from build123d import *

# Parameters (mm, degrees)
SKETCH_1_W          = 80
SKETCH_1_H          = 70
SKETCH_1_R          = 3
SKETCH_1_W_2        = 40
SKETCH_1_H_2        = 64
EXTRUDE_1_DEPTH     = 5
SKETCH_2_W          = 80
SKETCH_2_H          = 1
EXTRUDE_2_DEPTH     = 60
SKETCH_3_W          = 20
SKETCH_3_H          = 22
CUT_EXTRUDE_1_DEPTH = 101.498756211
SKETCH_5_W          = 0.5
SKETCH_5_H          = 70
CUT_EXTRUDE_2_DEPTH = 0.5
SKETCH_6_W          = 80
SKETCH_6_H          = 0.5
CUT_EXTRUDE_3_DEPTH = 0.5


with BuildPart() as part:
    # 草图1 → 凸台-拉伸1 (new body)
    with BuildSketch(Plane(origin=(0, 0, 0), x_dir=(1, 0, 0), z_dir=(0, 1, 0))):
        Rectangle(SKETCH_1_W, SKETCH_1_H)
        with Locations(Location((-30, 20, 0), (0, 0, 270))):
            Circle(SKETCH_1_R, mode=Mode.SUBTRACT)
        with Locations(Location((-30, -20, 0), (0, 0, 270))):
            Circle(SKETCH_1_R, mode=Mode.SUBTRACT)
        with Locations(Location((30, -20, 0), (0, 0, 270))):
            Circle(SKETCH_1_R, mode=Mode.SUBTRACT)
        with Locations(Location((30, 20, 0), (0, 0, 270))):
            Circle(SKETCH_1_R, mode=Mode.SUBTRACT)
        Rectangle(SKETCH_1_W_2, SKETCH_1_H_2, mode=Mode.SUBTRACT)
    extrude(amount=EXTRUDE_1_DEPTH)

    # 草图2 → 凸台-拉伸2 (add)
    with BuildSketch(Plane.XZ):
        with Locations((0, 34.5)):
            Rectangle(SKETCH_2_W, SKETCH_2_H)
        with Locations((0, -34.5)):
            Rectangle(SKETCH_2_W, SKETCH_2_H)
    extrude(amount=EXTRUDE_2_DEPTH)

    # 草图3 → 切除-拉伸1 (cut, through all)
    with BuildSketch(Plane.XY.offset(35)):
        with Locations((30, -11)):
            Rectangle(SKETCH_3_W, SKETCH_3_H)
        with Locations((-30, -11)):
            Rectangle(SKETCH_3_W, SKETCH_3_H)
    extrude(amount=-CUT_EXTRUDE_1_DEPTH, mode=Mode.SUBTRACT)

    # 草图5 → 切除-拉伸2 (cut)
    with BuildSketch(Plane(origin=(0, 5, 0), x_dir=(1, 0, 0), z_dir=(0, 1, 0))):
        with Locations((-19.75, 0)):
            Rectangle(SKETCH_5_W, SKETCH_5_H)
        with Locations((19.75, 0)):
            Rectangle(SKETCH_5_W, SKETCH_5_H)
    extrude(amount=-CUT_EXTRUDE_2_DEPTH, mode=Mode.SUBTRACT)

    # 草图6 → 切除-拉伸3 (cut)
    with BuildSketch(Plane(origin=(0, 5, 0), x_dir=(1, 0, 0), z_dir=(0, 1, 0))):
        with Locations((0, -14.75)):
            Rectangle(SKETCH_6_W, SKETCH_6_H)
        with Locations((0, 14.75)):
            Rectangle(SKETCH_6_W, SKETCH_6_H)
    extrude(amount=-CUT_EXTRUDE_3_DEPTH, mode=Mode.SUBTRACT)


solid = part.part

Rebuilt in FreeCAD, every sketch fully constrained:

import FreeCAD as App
import Part
import Sketcher

V = App.Vector
Q = App.Units.Quantity

doc = App.newDocument("Part")
params = doc.addObject("Spreadsheet::Sheet", "Params")
for row, (alias, value) in enumerate([
    ("sketch1_diameter", "6 mm"),
    ("sketch1_width", "80 mm"),
    ("sketch1_width2", "40 mm"),
    ("sketch1_height", "70 mm"),
    ("sketch1_height2", "64 mm"),
    ("pad1_length", "5 mm"),
    ("sketch2_width", "80 mm"),
    ("sketch2_height", "1 mm"),
    ("pad2_length", "60 mm"),
    ("sketch3_width", "20 mm"),
    ("sketch3_height", "22 mm"),
    ("sketch4_height", "70 mm"),
    ("sketch4_width", "0.5 mm"),
    ("pocket2_length", "0.5 mm"),
    ("sketch5_width", "80 mm"),
    ("sketch5_height", "0.5 mm"),
    ("pocket3_length", "0.5 mm"),
], start=1):
    params.set(f"A{row}", alias)
    params.set(f"B{row}", "=" + value)
    params.setAlias(f"B{row}", alias)

body = doc.addObject("PartDesign::Body", "Body")

sketch1 = body.newObject("Sketcher::SketchObject", "Sketch")
sketch1.AttachmentSupport = (doc.getObject("XZ_Plane"), [""])
sketch1.MapMode = "FlatFace"
sketch1.addGeometry([
    Part.LineSegment(V(-40, -35, 0), V(-40, 35, 0)),
    Part.LineSegment(V(-40, 35, 0), V(40, 35, 0)),
    Part.LineSegment(V(40, 35, 0), V(40, -35, 0)),
    Part.LineSegment(V(40, -35, 0), V(-40, -35, 0)),
    Part.Circle(V(-30, 20, 0), V(0, 0, 1), 3),
    Part.Circle(V(30, 20, 0), V(0, 0, 1), 3),
    Part.Circle(V(-30, -20, 0), V(0, 0, 1), 3),
    Part.LineSegment(V(20, 32, 0), V(-20, 32, 0)),
    Part.LineSegment(V(-20, 32, 0), V(-20, -32, 0)),
    Part.LineSegment(V(-20, -32, 0), V(20, -32, 0)),
    Part.LineSegment(V(20, -32, 0), V(20, 32, 0)),
    Part.Circle(V(30, -20, 0), V(0, 0, 1), 3),
], False)
sketch1.addConstraint([
    Sketcher.Constraint("Coincident", 0, 2, 1, 1),
    Sketcher.Constraint("Coincident", 1, 2, 2, 1),
    Sketcher.Constraint("Coincident", 2, 2, 3, 1),
    Sketcher.Constraint("Coincident", 3, 2, 0, 1),
    Sketcher.Constraint("Coincident", 7, 2, 8, 1),
    Sketcher.Constraint("Coincident", 8, 2, 9, 1),
    Sketcher.Constraint("Coincident", 9, 2, 10, 1),
    Sketcher.Constraint("Coincident", 10, 2, 7, 1),
    Sketcher.Constraint("Vertical", 0),
    Sketcher.Constraint("Horizontal", 1),
    Sketcher.Constraint("Vertical", 2),
    Sketcher.Constraint("Horizontal", 3),
    Sketcher.Constraint("Horizontal", 7),
    Sketcher.Constraint("Vertical", 8),
    Sketcher.Constraint("Horizontal", 9),
    Sketcher.Constraint("Vertical", 10),
    Sketcher.Constraint("Equal", 4, 5),
    Sketcher.Constraint("Equal", 5, 6),
    Sketcher.Constraint("Equal", 6, 11),
    Sketcher.Constraint("Symmetric", 5, 3, 6, 3, -1, 1),
    Sketcher.Constraint("Symmetric", 4, 3, 11, 3, -1, 1),
    Sketcher.Constraint("Symmetric", 0, 2, 2, 2, -1, 1),
    Sketcher.Constraint("Symmetric", 7, 2, 9, 2, -1, 1),
    Sketcher.Constraint("Symmetric", 4, 3, 5, 3, -2),
    Sketcher.Constraint("Diameter", 4, Q("6 mm")),
    Sketcher.Constraint("DistanceX", 1, 1, 1, 2, Q("80 mm")),
    Sketcher.Constraint("DistanceX", 7, 2, 7, 1, Q("40 mm")),
    Sketcher.Constraint("DistanceY", 0, 1, 0, 2, Q("70 mm")),
    Sketcher.Constraint("DistanceY", 8, 2, 8, 1, Q("64 mm")),
    Sketcher.Constraint("DistanceX", 4, 3, -1, 1, Q("30 mm")),
    Sketcher.Constraint("DistanceY", -1, 1, 4, 3, Q("20 mm")),
])
sketch1.setExpression("Constraints[24]", "Params.sketch1_diameter")
sketch1.setExpression("Constraints[25]", "Params.sketch1_width")
sketch1.setExpression("Constraints[26]", "Params.sketch1_width2")
sketch1.setExpression("Constraints[27]", "Params.sketch1_height")
sketch1.setExpression("Constraints[28]", "Params.sketch1_height2")
pad1 = body.newObject("PartDesign::Pad", "Pad")
pad1.Profile = sketch1
pad1.setExpression("Length", "Params.pad1_length")
pad1.Reversed = True

sketch2 = body.newObject("Sketcher::SketchObject", "Sketch001")
sketch2.AttachmentSupport = (doc.getObject("XZ_Plane"), [""])
sketch2.MapMode = "FlatFace"
sketch2.addGeometry([
    Part.LineSegment(V(-40, 35, 0), V(-40, 34, 0)),
    Part.LineSegment(V(-40, 34, 0), V(40, 34, 0)),
    Part.LineSegment(V(40, 34, 0), V(40, 35, 0)),
    Part.LineSegment(V(40, 35, 0), V(-40, 35, 0)),
    Part.LineSegment(V(-40, -34, 0), V(-40, -35, 0)),
    Part.LineSegment(V(-40, -35, 0), V(40, -35, 0)),
    Part.LineSegment(V(40, -35, 0), V(40, -34, 0)),
    Part.LineSegment(V(40, -34, 0), V(-40, -34, 0)),
], False)
sketch2.addConstraint([
    Sketcher.Constraint("Coincident", 0, 2, 1, 1),
    Sketcher.Constraint("Coincident", 1, 2, 2, 1),
    Sketcher.Constraint("Coincident", 2, 2, 3, 1),
    Sketcher.Constraint("Coincident", 3, 2, 0, 1),
    Sketcher.Constraint("Coincident", 4, 2, 5, 1),
    Sketcher.Constraint("Coincident", 5, 2, 6, 1),
    Sketcher.Constraint("Coincident", 6, 2, 7, 1),
    Sketcher.Constraint("Coincident", 7, 2, 4, 1),
    Sketcher.Constraint("Vertical", 0),
    Sketcher.Constraint("Horizontal", 1),
    Sketcher.Constraint("Vertical", 2),
    Sketcher.Constraint("Horizontal", 3),
    Sketcher.Constraint("Vertical", 4),
    Sketcher.Constraint("Horizontal", 5),
    Sketcher.Constraint("Vertical", 6),
    Sketcher.Constraint("Horizontal", 7),
    Sketcher.Constraint("Symmetric", 2, 2, 4, 2, -1, 1),
    Sketcher.Constraint("Symmetric", 0, 2, 6, 2, -1, 1),
    Sketcher.Constraint("Vertical", 3, 2, 4, 2),
    Sketcher.Constraint("DistanceX", 1, 1, 1, 2, Q("80 mm")),
    Sketcher.Constraint("DistanceY", 0, 2, 0, 1, Q("1 mm")),
    Sketcher.Constraint("DistanceY", -1, 1, 0, 2, Q("34 mm")),
])
sketch2.setExpression("Constraints[19]", "Params.sketch2_width")
sketch2.setExpression("Constraints[20]", "Params.sketch2_height")
pad2 = body.newObject("PartDesign::Pad", "Pad001")
pad2.Profile = sketch2
pad2.setExpression("Length", "Params.pad2_length")

sketch3 = body.newObject("Sketcher::SketchObject", "Sketch002")
sketch3.AttachmentSupport = (doc.getObject("XY_Plane"), [""])
sketch3.MapMode = "FlatFace"
sketch3.AttachmentOffset = App.Placement(V(0, 0, 35), App.Rotation())
sketch3.addGeometry([
    Part.LineSegment(V(20, 0, 0), V(20, -22, 0)),
    Part.LineSegment(V(20, -22, 0), V(40, -22, 0)),
    Part.LineSegment(V(40, -22, 0), V(40, 0, 0)),
    Part.LineSegment(V(40, 0, 0), V(20, 0, 0)),
    Part.LineSegment(V(-40, 0, 0), V(-40, -22, 0)),
    Part.LineSegment(V(-40, -22, 0), V(-20, -22, 0)),
    Part.LineSegment(V(-20, -22, 0), V(-20, 0, 0)),
    Part.LineSegment(V(-20, 0, 0), V(-40, 0, 0)),
], False)
sketch3.addConstraint([
    Sketcher.Constraint("Coincident", 0, 2, 1, 1),
    Sketcher.Constraint("Coincident", 1, 2, 2, 1),
    Sketcher.Constraint("Coincident", 2, 2, 3, 1),
    Sketcher.Constraint("Coincident", 3, 2, 0, 1),
    Sketcher.Constraint("Coincident", 4, 2, 5, 1),
    Sketcher.Constraint("Coincident", 5, 2, 6, 1),
    Sketcher.Constraint("Coincident", 6, 2, 7, 1),
    Sketcher.Constraint("Coincident", 7, 2, 4, 1),
    Sketcher.Constraint("Vertical", 0),
    Sketcher.Constraint("Horizontal", 1),
    Sketcher.Constraint("Vertical", 2),
    Sketcher.Constraint("Horizontal", 3),
    Sketcher.Constraint("Vertical", 4),
    Sketcher.Constraint("Horizontal", 5),
    Sketcher.Constraint("Vertical", 6),
    Sketcher.Constraint("Horizontal", 7),
    Sketcher.Constraint("Symmetric", 3, 2, 6, 2, -1, 1),
    Sketcher.Constraint("Symmetric", 1, 2, 4, 2, -2),
    Sketcher.Constraint("PointOnObject", 2, 2, -1),
    Sketcher.Constraint("DistanceX", 1, 1, 1, 2, Q("20 mm")),
    Sketcher.Constraint("DistanceY", 0, 2, 0, 1, Q("22 mm")),
    Sketcher.Constraint("DistanceX", -1, 1, 0, 2, Q("20 mm")),
])
sketch3.setExpression("Constraints[19]", "Params.sketch3_width")
sketch3.setExpression("Constraints[20]", "Params.sketch3_height")
pocket1 = body.newObject("PartDesign::Pocket", "Pocket")
pocket1.Profile = sketch3
pocket1.Type = "ThroughAll"

sketch4 = body.newObject("Sketcher::SketchObject", "Sketch003")
sketch4.AttachmentSupport = (doc.getObject("XZ_Plane"), [""])
sketch4.MapMode = "FlatFace"
sketch4.AttachmentOffset = App.Placement(V(0, 0, -5), App.Rotation())
sketch4.addGeometry([
    Part.LineSegment(V(-20, -35, 0), V(-20, 35, 0)),
    Part.LineSegment(V(-20, 35, 0), V(-19.5, 35, 0)),
    Part.LineSegment(V(-19.5, 35, 0), V(-19.5, -35, 0)),
    Part.LineSegment(V(-19.5, -35, 0), V(-20, -35, 0)),
    Part.LineSegment(V(19.5, -35, 0), V(19.5, 35, 0)),
    Part.LineSegment(V(19.5, 35, 0), V(20, 35, 0)),
    Part.LineSegment(V(20, 35, 0), V(20, -35, 0)),
    Part.LineSegment(V(20, -35, 0), V(19.5, -35, 0)),
], False)
sketch4.addConstraint([
    Sketcher.Constraint("Coincident", 0, 2, 1, 1),
    Sketcher.Constraint("Coincident", 1, 2, 2, 1),
    Sketcher.Constraint("Coincident", 2, 2, 3, 1),
    Sketcher.Constraint("Coincident", 3, 2, 0, 1),
    Sketcher.Constraint("Coincident", 4, 2, 5, 1),
    Sketcher.Constraint("Coincident", 5, 2, 6, 1),
    Sketcher.Constraint("Coincident", 6, 2, 7, 1),
    Sketcher.Constraint("Coincident", 7, 2, 4, 1),
    Sketcher.Constraint("Vertical", 0),
    Sketcher.Constraint("Horizontal", 1),
    Sketcher.Constraint("Vertical", 2),
    Sketcher.Constraint("Horizontal", 3),
    Sketcher.Constraint("Vertical", 4),
    Sketcher.Constraint("Horizontal", 5),
    Sketcher.Constraint("Vertical", 6),
    Sketcher.Constraint("Horizontal", 7),
    Sketcher.Constraint("Symmetric", 2, 2, 4, 2, -1, 1),
    Sketcher.Constraint("Symmetric", 0, 2, 6, 2, -1, 1),
    Sketcher.Constraint("Horizontal", 1, 2, 4, 2),
    Sketcher.Constraint("DistanceY", 0, 1, 0, 2, Q("70 mm")),
    Sketcher.Constraint("DistanceX", 1, 1, 1, 2, Q("0.5 mm")),
    Sketcher.Constraint("DistanceX", 0, 2, -1, 1, Q("20 mm")),
])
sketch4.setExpression("Constraints[19]", "Params.sketch4_height")
sketch4.setExpression("Constraints[20]", "Params.sketch4_width")
pocket2 = body.newObject("PartDesign::Pocket", "Pocket001")
pocket2.Profile = sketch4
pocket2.setExpression("Length", "Params.pocket2_length")
pocket2.Reversed = True

sketch5 = body.newObject("Sketcher::SketchObject", "Sketch004")
sketch5.AttachmentSupport = (doc.getObject("XZ_Plane"), [""])
sketch5.MapMode = "FlatFace"
sketch5.AttachmentOffset = App.Placement(V(0, 0, -5), App.Rotation())
sketch5.addGeometry([
    Part.LineSegment(V(-40, 14.5, 0), V(-40, 15, 0)),
    Part.LineSegment(V(-40, 15, 0), V(40, 15, 0)),
    Part.LineSegment(V(40, 15, 0), V(40, 14.5, 0)),
    Part.LineSegment(V(40, 14.5, 0), V(-40, 14.5, 0)),
    Part.LineSegment(V(-40, -15, 0), V(-40, -14.5, 0)),
    Part.LineSegment(V(-40, -14.5, 0), V(40, -14.5, 0)),
    Part.LineSegment(V(40, -14.5, 0), V(40, -15, 0)),
    Part.LineSegment(V(40, -15, 0), V(-40, -15, 0)),
], False)
sketch5.addConstraint([
    Sketcher.Constraint("Coincident", 0, 2, 1, 1),
    Sketcher.Constraint("Coincident", 1, 2, 2, 1),
    Sketcher.Constraint("Coincident", 2, 2, 3, 1),
    Sketcher.Constraint("Coincident", 3, 2, 0, 1),
    Sketcher.Constraint("Coincident", 4, 2, 5, 1),
    Sketcher.Constraint("Coincident", 5, 2, 6, 1),
    Sketcher.Constraint("Coincident", 6, 2, 7, 1),
    Sketcher.Constraint("Coincident", 7, 2, 4, 1),
    Sketcher.Constraint("Vertical", 0),
    Sketcher.Constraint("Horizontal", 1),
    Sketcher.Constraint("Vertical", 2),
    Sketcher.Constraint("Horizontal", 3),
    Sketcher.Constraint("Vertical", 4),
    Sketcher.Constraint("Horizontal", 5),
    Sketcher.Constraint("Vertical", 6),
    Sketcher.Constraint("Horizontal", 7),
    Sketcher.Constraint("Symmetric", 2, 2, 4, 2, -1, 1),
    Sketcher.Constraint("Symmetric", 0, 2, 6, 2, -1, 1),
    Sketcher.Constraint("Vertical", 3, 2, 4, 2),
    Sketcher.Constraint("DistanceX", 1, 1, 1, 2, Q("80 mm")),
    Sketcher.Constraint("DistanceY", 0, 1, 0, 2, Q("0.5 mm")),
    Sketcher.Constraint("DistanceY", -1, 1, 0, 2, Q("15 mm")),
])
sketch5.setExpression("Constraints[19]", "Params.sketch5_width")
sketch5.setExpression("Constraints[20]", "Params.sketch5_height")
pocket3 = body.newObject("PartDesign::Pocket", "Pocket002")
pocket3.Profile = sketch5
pocket3.setExpression("Length", "Params.pocket3_length")
pocket3.Reversed = True

doc.recompute()
